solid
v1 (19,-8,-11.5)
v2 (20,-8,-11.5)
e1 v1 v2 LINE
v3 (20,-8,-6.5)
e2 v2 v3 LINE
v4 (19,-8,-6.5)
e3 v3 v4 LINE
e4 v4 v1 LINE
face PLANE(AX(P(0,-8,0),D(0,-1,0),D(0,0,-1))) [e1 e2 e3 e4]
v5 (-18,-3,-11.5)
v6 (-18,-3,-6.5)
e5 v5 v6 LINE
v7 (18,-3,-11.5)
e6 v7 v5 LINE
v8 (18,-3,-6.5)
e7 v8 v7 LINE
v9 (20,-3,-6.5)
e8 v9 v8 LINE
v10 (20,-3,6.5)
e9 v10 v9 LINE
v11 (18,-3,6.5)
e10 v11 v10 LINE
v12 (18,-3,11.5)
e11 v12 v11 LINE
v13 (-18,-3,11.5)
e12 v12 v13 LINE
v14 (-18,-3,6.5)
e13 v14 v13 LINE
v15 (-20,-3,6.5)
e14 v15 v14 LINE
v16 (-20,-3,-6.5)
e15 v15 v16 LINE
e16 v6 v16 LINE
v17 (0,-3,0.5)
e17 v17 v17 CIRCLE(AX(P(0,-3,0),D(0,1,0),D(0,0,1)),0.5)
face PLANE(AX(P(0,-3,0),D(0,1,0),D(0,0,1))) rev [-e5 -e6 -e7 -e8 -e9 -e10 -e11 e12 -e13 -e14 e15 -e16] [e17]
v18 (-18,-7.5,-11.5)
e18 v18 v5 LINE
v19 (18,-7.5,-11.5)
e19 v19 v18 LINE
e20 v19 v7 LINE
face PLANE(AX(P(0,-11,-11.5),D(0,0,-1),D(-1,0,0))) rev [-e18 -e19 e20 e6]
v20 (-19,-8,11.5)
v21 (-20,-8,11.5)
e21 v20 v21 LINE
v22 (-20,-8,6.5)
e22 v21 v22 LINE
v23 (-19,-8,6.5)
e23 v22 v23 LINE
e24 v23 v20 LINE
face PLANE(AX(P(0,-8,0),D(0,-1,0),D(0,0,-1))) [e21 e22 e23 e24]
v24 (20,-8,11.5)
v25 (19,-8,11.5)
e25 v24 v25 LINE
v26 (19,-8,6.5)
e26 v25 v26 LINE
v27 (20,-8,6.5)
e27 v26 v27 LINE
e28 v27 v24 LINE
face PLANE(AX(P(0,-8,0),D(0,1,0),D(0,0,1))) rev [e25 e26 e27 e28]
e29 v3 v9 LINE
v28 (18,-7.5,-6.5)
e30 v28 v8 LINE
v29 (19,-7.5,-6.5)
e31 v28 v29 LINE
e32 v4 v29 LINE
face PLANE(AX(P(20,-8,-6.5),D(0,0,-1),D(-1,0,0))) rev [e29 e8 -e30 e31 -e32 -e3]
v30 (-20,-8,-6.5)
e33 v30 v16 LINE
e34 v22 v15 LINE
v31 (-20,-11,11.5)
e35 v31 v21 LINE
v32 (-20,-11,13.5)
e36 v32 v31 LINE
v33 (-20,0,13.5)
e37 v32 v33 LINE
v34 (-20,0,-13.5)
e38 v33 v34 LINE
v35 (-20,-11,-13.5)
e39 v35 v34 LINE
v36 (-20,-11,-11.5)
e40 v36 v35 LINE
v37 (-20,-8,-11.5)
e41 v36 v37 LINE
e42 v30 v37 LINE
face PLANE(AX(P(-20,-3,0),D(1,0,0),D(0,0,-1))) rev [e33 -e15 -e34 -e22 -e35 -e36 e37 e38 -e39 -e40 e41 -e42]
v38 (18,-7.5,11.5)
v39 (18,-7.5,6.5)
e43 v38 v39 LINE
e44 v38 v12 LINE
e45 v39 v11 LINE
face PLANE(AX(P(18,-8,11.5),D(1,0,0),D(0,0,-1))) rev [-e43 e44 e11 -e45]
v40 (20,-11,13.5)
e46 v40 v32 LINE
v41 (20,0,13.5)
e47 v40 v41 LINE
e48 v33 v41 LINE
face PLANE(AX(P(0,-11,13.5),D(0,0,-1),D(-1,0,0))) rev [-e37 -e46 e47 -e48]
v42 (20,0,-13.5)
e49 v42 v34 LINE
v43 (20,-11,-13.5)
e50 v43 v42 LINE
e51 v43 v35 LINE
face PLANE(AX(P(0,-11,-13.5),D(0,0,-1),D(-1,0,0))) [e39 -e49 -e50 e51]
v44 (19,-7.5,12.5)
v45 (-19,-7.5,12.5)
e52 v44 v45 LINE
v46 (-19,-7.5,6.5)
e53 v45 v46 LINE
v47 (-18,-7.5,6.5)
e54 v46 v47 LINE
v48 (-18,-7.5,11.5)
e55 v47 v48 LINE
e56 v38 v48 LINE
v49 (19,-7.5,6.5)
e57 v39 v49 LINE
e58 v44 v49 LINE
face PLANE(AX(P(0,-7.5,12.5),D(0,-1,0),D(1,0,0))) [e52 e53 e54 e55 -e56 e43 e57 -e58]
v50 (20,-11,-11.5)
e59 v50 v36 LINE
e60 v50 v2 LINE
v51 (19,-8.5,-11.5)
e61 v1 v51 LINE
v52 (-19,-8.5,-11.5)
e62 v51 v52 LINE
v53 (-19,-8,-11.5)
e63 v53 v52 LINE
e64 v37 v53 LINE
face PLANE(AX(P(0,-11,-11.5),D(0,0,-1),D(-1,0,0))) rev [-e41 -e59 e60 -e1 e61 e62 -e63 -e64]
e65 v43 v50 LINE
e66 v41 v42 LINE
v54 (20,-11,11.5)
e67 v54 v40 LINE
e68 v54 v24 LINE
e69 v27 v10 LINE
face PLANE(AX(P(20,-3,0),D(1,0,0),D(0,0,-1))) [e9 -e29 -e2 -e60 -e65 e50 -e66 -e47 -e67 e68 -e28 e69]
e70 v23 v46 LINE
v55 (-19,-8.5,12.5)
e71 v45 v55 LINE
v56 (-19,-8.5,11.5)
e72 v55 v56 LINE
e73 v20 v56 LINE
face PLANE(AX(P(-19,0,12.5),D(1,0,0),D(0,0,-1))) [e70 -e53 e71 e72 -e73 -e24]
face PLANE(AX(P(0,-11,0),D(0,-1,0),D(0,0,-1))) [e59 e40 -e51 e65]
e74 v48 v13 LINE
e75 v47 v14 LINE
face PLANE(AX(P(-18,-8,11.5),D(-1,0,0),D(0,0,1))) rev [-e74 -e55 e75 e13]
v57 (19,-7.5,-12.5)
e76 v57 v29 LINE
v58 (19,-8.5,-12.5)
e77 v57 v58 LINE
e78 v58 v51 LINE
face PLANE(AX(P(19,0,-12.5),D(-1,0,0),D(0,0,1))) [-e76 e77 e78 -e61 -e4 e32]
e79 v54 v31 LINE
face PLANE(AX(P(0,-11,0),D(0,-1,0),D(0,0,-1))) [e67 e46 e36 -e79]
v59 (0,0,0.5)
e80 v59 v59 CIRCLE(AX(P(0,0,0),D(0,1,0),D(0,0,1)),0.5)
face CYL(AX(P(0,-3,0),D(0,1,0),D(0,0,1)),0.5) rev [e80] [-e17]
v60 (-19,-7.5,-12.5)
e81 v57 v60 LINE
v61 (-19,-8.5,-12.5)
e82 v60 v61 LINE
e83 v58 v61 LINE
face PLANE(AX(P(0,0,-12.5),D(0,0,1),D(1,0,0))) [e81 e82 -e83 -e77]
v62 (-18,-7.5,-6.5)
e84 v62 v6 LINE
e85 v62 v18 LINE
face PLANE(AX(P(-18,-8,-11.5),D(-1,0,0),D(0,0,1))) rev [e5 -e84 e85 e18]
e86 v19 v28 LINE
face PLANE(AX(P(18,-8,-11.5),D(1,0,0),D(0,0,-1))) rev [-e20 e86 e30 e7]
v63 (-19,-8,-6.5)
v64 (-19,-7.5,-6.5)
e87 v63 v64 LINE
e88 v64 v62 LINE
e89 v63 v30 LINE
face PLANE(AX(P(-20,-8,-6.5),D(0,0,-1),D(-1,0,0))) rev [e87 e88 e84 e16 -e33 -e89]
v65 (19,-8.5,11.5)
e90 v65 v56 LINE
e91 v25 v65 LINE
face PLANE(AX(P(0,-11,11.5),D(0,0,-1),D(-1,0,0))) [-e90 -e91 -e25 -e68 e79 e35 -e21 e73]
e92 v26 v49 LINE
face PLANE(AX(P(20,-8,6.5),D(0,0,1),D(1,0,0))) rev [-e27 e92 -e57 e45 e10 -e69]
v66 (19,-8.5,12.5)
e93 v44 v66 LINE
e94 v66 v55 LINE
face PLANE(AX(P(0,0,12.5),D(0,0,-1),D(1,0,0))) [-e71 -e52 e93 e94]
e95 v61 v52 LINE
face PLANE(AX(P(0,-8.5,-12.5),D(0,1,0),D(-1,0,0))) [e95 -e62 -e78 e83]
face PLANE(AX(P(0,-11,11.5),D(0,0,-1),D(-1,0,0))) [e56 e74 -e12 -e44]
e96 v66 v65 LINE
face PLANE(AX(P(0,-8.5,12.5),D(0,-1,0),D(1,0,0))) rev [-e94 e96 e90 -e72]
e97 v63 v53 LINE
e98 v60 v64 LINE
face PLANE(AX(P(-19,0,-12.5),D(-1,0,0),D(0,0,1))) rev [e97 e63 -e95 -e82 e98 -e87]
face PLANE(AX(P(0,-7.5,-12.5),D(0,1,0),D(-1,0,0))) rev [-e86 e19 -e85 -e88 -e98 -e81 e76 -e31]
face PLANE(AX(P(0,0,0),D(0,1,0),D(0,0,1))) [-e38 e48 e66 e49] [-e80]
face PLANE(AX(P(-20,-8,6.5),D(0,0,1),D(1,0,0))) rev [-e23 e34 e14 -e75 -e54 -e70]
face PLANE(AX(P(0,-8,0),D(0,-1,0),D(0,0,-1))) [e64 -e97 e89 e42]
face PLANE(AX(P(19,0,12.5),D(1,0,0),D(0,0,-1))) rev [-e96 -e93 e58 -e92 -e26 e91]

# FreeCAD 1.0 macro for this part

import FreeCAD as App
import Part
import Sketcher

V = App.Vector

doc = App.newDocument("Part")
body = doc.addObject("PartDesign::Body", "Body")

# Sketch on XZ plane
sketch1 = body.newObject("Sketcher::SketchObject", "Sketch")
sketch1.AttachmentSupport = (doc.getObject("XZ_Plane"), [""])
sketch1.MapMode = "FlatFace"
sketch1.addGeometry([
    Part.LineSegment(V(-20, -20, 0), V(-20, 20, 0)),  # 0
    Part.LineSegment(V(-20, 20, 0), V(20, 20, 0)),  # 1
    Part.LineSegment(V(20, 20, 0), V(20, -20, 0)),  # 2
    Part.LineSegment(V(20, -20, 0), V(-20, -20, 0)),  # 3
    Part.Circle(V(0, 0, 0), V(0, 0, 1), 0.5),  # 4
], False)
sketch1.addConstraint([
    Sketcher.Constraint("Coincident", 0, 2, 1, 1),
    Sketcher.Constraint("Coincident", 1, 2, 2, 1),
    Sketcher.Constraint("Coincident", 2, 2, 3, 1),
    Sketcher.Constraint("Coincident", 3, 2, 0, 1),
    Sketcher.Constraint("Vertical", 0),
    Sketcher.Constraint("Horizontal", 1),
    Sketcher.Constraint("Vertical", 2),
    Sketcher.Constraint("Horizontal", 3),
    Sketcher.Constraint("Coincident", 4, 3, -1, 1),
    Sketcher.Constraint("Symmetric", 0, 2, 2, 2, -1, 1),
    Sketcher.Constraint("Equal", 3, 0),
    Sketcher.Constraint("Diameter", 4, 1.0),
    Sketcher.Constraint("DistanceX", 1, 1, 1, 2, 40.0),
])
pad1 = body.newObject("PartDesign::Pad", "Pad")
pad1.Profile = sketch1
pad1.Length = 3

# Sketch on XZ plane
sketch2 = body.newObject("Sketcher::SketchObject", "Sketch001")
sketch2.AttachmentSupport = (doc.getObject("XZ_Plane"), [""])
sketch2.MapMode = "FlatFace"
sketch2.AttachmentOffset = App.Placement(V(0, 0, 3), App.Rotation())
sketch2.addGeometry([
    Part.LineSegment(V(20, -11.5, 0), V(-20, -11.5, 0)),  # 0
    Part.LineSegment(V(-20, -11.5, 0), V(-20, -13.5, 0)),  # 1
    Part.LineSegment(V(-20, -13.5, 0), V(20, -13.5, 0)),  # 2
    Part.LineSegment(V(20, -13.5, 0), V(20, -11.5, 0)),  # 3
    Part.LineSegment(V(-20, 11.5, 0), V(20, 11.5, 0)),  # 4
    Part.LineSegment(V(20, 11.5, 0), V(20, 13.5, 0)),  # 5
    Part.LineSegment(V(20, 13.5, 0), V(-20, 13.5, 0)),  # 6
    Part.LineSegment(V(-20, 13.5, 0), V(-20, 11.5, 0)),  # 7
], False)
sketch2.addConstraint([
    Sketcher.Constraint("Coincident", 0, 2, 1, 1),
    Sketcher.Constraint("Coincident", 1, 2, 2, 1),
    Sketcher.Constraint("Coincident", 2, 2, 3, 1),
    Sketcher.Constraint("Coincident", 3, 2, 0, 1),
    Sketcher.Constraint("Coincident", 4, 2, 5, 1),
    Sketcher.Constraint("Coincident", 5, 2, 6, 1),
    Sketcher.Constraint("Coincident", 6, 2, 7, 1),
    Sketcher.Constraint("Coincident", 7, 2, 4, 1),
    Sketcher.Constraint("Horizontal", 0),
    Sketcher.Constraint("Vertical", 1),
    Sketcher.Constraint("Horizontal", 2),
    Sketcher.Constraint("Vertical", 3),
    Sketcher.Constraint("Horizontal", 4),
    Sketcher.Constraint("Vertical", 5),
    Sketcher.Constraint("Horizontal", 6),
    Sketcher.Constraint("Vertical", 7),
    Sketcher.Constraint("Symmetric", 0, 2, 4, 2, -1, 1),
    Sketcher.Constraint("Symmetric", 2, 2, 6, 2, -1, 1),
    Sketcher.Constraint("Vertical", 3, 2, 4, 2),
    Sketcher.Constraint("DistanceX", 0, 2, 0, 1, 40.0),
    Sketcher.Constraint("DistanceY", 1, 2, 1, 1, 2.0),
    Sketcher.Constraint("DistanceY", 3, 2, 4, 2, 23.0),
])
pad2 = body.newObject("PartDesign::Pad", "Pad001")
pad2.Profile = sketch2
pad2.Length = 8

# Sketch on XZ plane
sketch3 = body.newObject("Sketcher::SketchObject", "Sketch002")
sketch3.AttachmentSupport = (doc.getObject("XZ_Plane"), [""])
sketch3.MapMode = "FlatFace"
sketch3.AttachmentOffset = App.Placement(V(0, 0, 3), App.Rotation())
sketch3.addGeometry([
    Part.LineSegment(V(18, 11.5, 0), V(18, 6.5, 0)),  # 0
    Part.LineSegment(V(18, 6.5, 0), V(20, 6.5, 0)),  # 1
    Part.LineSegment(V(20, 6.5, 0), V(20, 11.5, 0)),  # 2
    Part.LineSegment(V(20, 11.5, 0), V(18, 11.5, 0)),  # 3
    Part.LineSegment(V(18, -6.5, 0), V(18, -11.5, 0)),  # 4
    Part.LineSegment(V(18, -11.5, 0), V(20, -11.5, 0)),  # 5
    Part.LineSegment(V(20, -11.5, 0), V(20, -6.5, 0)),  # 6
    Part.LineSegment(V(20, -6.5, 0), V(18, -6.5, 0)),  # 7
    Part.LineSegment(V(-20, -6.5, 0), V(-20, -11.5, 0)),  # 8
    Part.LineSegment(V(-20, -11.5, 0), V(-18, -11.5, 0)),  # 9
    Part.LineSegment(V(-18, -11.5, 0), V(-18, -6.5, 0)),  # 10
    Part.LineSegment(V(-18, -6.5, 0), V(-20, -6.5, 0)),  # 11
    Part.LineSegment(V(-20, 11.5, 0), V(-20, 6.5, 0)),  # 12
    Part.LineSegment(V(-20, 6.5, 0), V(-18, 6.5, 0)),  # 13
    Part.LineSegment(V(-18, 6.5, 0), V(-18, 11.5, 0)),  # 14
    Part.LineSegment(V(-18, 11.5, 0), V(-20, 11.5, 0)),  # 15
], False)
sketch3.addConstraint([
    Sketcher.Constraint("Coincident", 0, 2, 1, 1),
    Sketcher.Constraint("Coincident", 1, 2, 2, 1),
    Sketcher.Constraint("Coincident", 2, 2, 3, 1),
    Sketcher.Constraint("Coincident", 3, 2, 0, 1),
    Sketcher.Constraint("Coincident", 4, 2, 5, 1),
    Sketcher.Constraint("Coincident", 5, 2, 6, 1),
    Sketcher.Constraint("Coincident", 6, 2, 7, 1),
    Sketcher.Constraint("Coincident", 7, 2, 4, 1),
    Sketcher.Constraint("Coincident", 8, 2, 9, 1),
    Sketcher.Constraint("Coincident", 9, 2, 10, 1),
    Sketcher.Constraint("Coincident", 10, 2, 11, 1),
    Sketcher.Constraint("Coincident", 11, 2, 8, 1),
    Sketcher.Constraint("Coincident", 12, 2, 13, 1),
    Sketcher.Constraint("Coincident", 13, 2, 14, 1),
    Sketcher.Constraint("Coincident", 14, 2, 15, 1),
    Sketcher.Constraint("Coincident", 15, 2, 12, 1),
    Sketcher.Constraint("Vertical", 0),
    Sketcher.Constraint("Horizontal", 1),
    Sketcher.Constraint("Vertical", 2),
    Sketcher.Constraint("Horizontal", 3),
    Sketcher.Constraint("Vertical", 4),
    Sketcher.Constraint("Horizontal", 5),
    Sketcher.Constraint("Vertical", 6),
    Sketcher.Constraint("Horizontal", 7),
    Sketcher.Constraint("Vertical", 8),
    Sketcher.Constraint("Horizontal", 9),
    Sketcher.Constraint("Vertical", 10),
    Sketcher.Constraint("Horizontal", 11),
    Sketcher.Constraint("Vertical", 12),
    Sketcher.Constraint("Horizontal", 13),
    Sketcher.Constraint("Vertical", 14),
    Sketcher.Constraint("Horizontal", 15),
    Sketcher.Constraint("Symmetric", 2, 2, 8, 2, -1, 1),
    Sketcher.Constraint("Symmetric", 0, 2, 10, 2, -1, 1),
    Sketcher.Constraint("Symmetric", 6, 2, 12, 2, -1, 1),
    Sketcher.Constraint("Symmetric", 4, 2, 14, 2, -1, 1),
    Sketcher.Constraint("Symmetric", 5, 2, 8, 2, -2),
    Sketcher.Constraint("Symmetric", 7, 2, 10, 2, -2),
    Sketcher.Constraint("DistanceX", 1, 1, 1, 2, 2.0),
    Sketcher.Constraint("DistanceY", 0, 2, 0, 1, 5.0),
    Sketcher.Constraint("DistanceX", -1, 1, 0, 2, 18.0),
    Sketcher.Constraint("DistanceY", 4, 2, 0, 2, 18.0),
])
pad3 = body.newObject("PartDesign::Pad", "Pad002")
pad3.Profile = sketch3
pad3.Length = 5

# Sketch on XZ plane
sketch4 = body.newObject("Sketcher::SketchObject", "Sketch003")
sketch4.AttachmentSupport = (doc.getObject("XZ_Plane"), [""])
sketch4.MapMode = "FlatFace"
sketch4.AttachmentOffset = App.Placement(V(0, 0, 3), App.Rotation())
sketch4.addGeometry([
    Part.LineSegment(V(20, 13.5, 0), V(20, 20, 0)),
    Part.LineSegment(V(20, 20, 0), V(-20, 20, 0)),
    Part.LineSegment(V(-20, 20, 0), V(-20, 13.5, 0)),
    Part.LineSegment(V(-20, 13.5, 0), V(20, 13.5, 0)),
], False)
sketch4.addConstraint([
    Sketcher.Constraint("Coincident", 0, 2, 1, 1),
    Sketcher.Constraint("Coincident", 1, 2, 2, 1),
    Sketcher.Constraint("Coincident", 2, 2, 3, 1),
    Sketcher.Constraint("Coincident", 3, 2, 0, 1),
    Sketcher.Constraint("Vertical", 0),
    Sketcher.Constraint("Horizontal", 1),
    Sketcher.Constraint("Vertical", 2),
    Sketcher.Constraint("Horizontal", 3),
    Sketcher.Constraint("DistanceX", 1, 2, 1, 1, 40.0),
    Sketcher.Constraint("DistanceY", 0, 1, 0, 2, 6.5),
    Sketcher.Constraint("DistanceX", -1, 1, 0, 2, 20.0),
    Sketcher.Constraint("DistanceY", -1, 1, 0, 2, 20.0),
])
pocket1 = body.newObject("PartDesign::Pocket", "Pocket")
pocket1.Profile = sketch4
pocket1.Length = 3

# Sketch on XZ plane
sketch5 = body.newObject("Sketcher::SketchObject", "Sketch004")
sketch5.AttachmentSupport = (doc.getObject("XZ_Plane"), [""])
sketch5.MapMode = "FlatFace"
sketch5.AttachmentOffset = App.Placement(V(0, 0, 3), App.Rotation())
sketch5.addGeometry([
    Part.LineSegment(V(-20, -13.5, 0), V(-20, -20, 0)),
    Part.LineSegment(V(-20, -20, 0), V(20, -20, 0)),
    Part.LineSegment(V(20, -20, 0), V(20, -13.5, 0)),
    Part.LineSegment(V(20, -13.5, 0), V(-20, -13.5, 0)),
], False)
sketch5.addConstraint([
    Sketcher.Constraint("Coincident", 0, 2, 1, 1),
    Sketcher.Constraint("Coincident", 1, 2, 2, 1),
    Sketcher.Constraint("Coincident", 2, 2, 3, 1),
    Sketcher.Constraint("Coincident", 3, 2, 0, 1),
    Sketcher.Constraint("Vertical", 0),
    Sketcher.Constraint("Horizontal", 1),
    Sketcher.Constraint("Vertical", 2),
    Sketcher.Constraint("Horizontal", 3),
    Sketcher.Constraint("DistanceX", 1, 1, 1, 2, 40.0),
    Sketcher.Constraint("DistanceY", 0, 2, 0, 1, 6.5),
    Sketcher.Constraint("DistanceX", 0, 2, -1, 1, 20.0),
    Sketcher.Constraint("DistanceY", 0, 2, -1, 1, 20.0),
])
pocket2 = body.newObject("PartDesign::Pocket", "Pocket001")
pocket2.Profile = sketch5
pocket2.Length = 3

# Sketch on XY plane
sketch6 = body.newObject("Sketcher::SketchObject", "Sketch005")
sketch6.AttachmentSupport = (doc.getObject("XY_Plane"), [""])
sketch6.MapMode = "FlatFace"
sketch6.AttachmentOffset = App.Placement(V(0, 0, -12.5), App.Rotation())
sketch6.addGeometry([
    Part.LineSegment(V(19, -7.5, 0), V(-19, -7.5, 0)),
    Part.LineSegment(V(-19, -7.5, 0), V(-19, -8.5, 0)),
    Part.LineSegment(V(-19, -8.5, 0), V(19, -8.5, 0)),
    Part.LineSegment(V(19, -8.5, 0), V(19, -7.5, 0)),
], False)
sketch6.addConstraint([
    Sketcher.Constraint("Coincident", 0, 2, 1, 1),
    Sketcher.Constraint("Coincident", 1, 2, 2, 1),
    Sketcher.Constraint("Coincident", 2, 2, 3, 1),
    Sketcher.Constraint("Coincident", 3, 2, 0, 1),
    Sketcher.Constraint("Horizontal", 0),
    Sketcher.Constraint("Vertical", 1),
    Sketcher.Constraint("Horizontal", 2),
    Sketcher.Constraint("Vertical", 3),
    Sketcher.Constraint("DistanceX", 0, 2, 0, 1, 38.0),
    Sketcher.Constraint("DistanceY", 1, 2, 1, 1, 1.0),
    Sketcher.Constraint("DistanceX", 0, 2, -1, 1, 19.0),
    Sketcher.Constraint("DistanceY", 0, 2, -1, 1, 7.5),
])
pocket3 = body.newObject("PartDesign::Pocket", "Pocket002")
pocket3.Profile = sketch6
pocket3.Length = 6
pocket3.Reversed = True
doc.recompute()

mirrored = body.newObject("PartDesign::Mirrored", "Mirrored")
mirrored.Originals = [pocket3]
mirrored.MirrorPlane = (doc.getObject("XY_Plane"), [""])
body.Tip = mirrored

doc.recompute()
